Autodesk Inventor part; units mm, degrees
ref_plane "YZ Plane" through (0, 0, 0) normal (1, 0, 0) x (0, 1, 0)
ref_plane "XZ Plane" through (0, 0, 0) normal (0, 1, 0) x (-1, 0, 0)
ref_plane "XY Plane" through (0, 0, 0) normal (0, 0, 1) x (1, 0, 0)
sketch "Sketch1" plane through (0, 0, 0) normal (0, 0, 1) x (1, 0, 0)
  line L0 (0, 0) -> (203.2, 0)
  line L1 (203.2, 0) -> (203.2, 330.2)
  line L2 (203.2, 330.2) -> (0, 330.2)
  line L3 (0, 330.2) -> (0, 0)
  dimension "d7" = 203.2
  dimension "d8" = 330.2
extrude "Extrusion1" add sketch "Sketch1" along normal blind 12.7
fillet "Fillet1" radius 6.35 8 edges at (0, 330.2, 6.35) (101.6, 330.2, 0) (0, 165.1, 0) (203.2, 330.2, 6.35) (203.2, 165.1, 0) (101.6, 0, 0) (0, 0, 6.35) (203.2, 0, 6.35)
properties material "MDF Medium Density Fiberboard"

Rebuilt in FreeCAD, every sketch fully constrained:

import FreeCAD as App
import Part
import Sketcher

V = App.Vector
Q = App.Units.Quantity


def edges_at(feature, points):
    """Names of the edges that pass closest to the given points."""
    edges = feature.Shape.Edges
    near = lambda p: min(range(len(edges)), key=lambda i: edges[i].distToShape(Part.Vertex(*p))[0])
    return sorted({f"Edge{near(p) + 1}" for p in points})

doc = App.newDocument("Part")
body = doc.addObject("PartDesign::Body", "Body")

# Sketch on XY plane
sketch1 = doc.addObject("Sketcher::SketchObject", "Sketch")
body.addObject(sketch1)
sketch1.AttachmentSupport = (doc.XY_Plane, [""])
sketch1.MapMode = "FlatFace"
sketch1.addGeometry([
    Part.LineSegment(V(0, 330.2, 0), V(0, 0, 0)),
    Part.LineSegment(V(0, 0, 0), V(203.2, 0, 0)),
    Part.LineSegment(V(203.2, 0, 0), V(203.2, 330.2, 0)),
    Part.LineSegment(V(203.2, 330.2, 0), V(0, 330.2, 0)),
], False)
sketch1.addConstraint([
    Sketcher.Constraint("Coincident", 0, 2, 1, 1),
    Sketcher.Constraint("Coincident", 1, 2, 2, 1),
    Sketcher.Constraint("Coincident", 2, 2, 3, 1),
    Sketcher.Constraint("Coincident", 3, 2, 0, 1),
    Sketcher.Constraint("Vertical", 0),
    Sketcher.Constraint("Horizontal", 1),
    Sketcher.Constraint("Vertical", 2),
    Sketcher.Constraint("Horizontal", 3),
    Sketcher.Constraint("Coincident", 0, 2, -1, 1),
    Sketcher.Constraint("DistanceX", 1, 1, 1, 2, Q("8 in")),
    Sketcher.Constraint("DistanceY", 0, 2, 0, 1, Q("13 in")),
])
pad1 = doc.addObject("PartDesign::Pad", "Pad")
body.addObject(pad1)
pad1.Profile = sketch1
pad1.Length = Q("0.5 in")
doc.recompute()

fillet = doc.addObject("PartDesign::Fillet", "Fillet")
body.addObject(fillet)
fillet.Base = (pad1, edges_at(pad1, [
    (0, 330.2, 6.35),
    (101.6, 330.2, 0),
    (0, 165.1, 0),
    (203.2, 330.2, 6.35),
    (203.2, 165.1, 0),
    (101.6, 0, 0),
    (0, 0, 6.35),
    (203.2, 0, 6.35),
]))
fillet.Radius = Q("0.25 in")

doc.recompute()
